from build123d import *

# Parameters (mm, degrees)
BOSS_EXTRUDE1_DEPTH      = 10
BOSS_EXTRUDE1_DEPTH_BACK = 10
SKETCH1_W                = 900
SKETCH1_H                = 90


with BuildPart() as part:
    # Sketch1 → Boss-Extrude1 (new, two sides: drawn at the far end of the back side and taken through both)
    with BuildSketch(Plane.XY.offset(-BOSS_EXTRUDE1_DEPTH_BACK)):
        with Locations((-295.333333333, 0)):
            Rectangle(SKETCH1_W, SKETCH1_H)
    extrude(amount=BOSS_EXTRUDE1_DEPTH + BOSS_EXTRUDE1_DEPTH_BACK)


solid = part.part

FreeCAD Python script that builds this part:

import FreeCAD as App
import Part
import Sketcher

V = App.Vector

doc = App.newDocument("Part")
params = doc.addObject("Spreadsheet::Sheet", "Params")
for row, (alias, value) in enumerate([
    ("sketch1_width", "900 mm"),
    ("sketch1_height", "90 mm"),
    ("pad1_length", "10 mm"),
    ("pad1_length2", "10 mm"),
], start=1):
    params.set(f"A{row}", alias)
    params.set(f"B{row}", "=" + value)
    params.setAlias(f"B{row}", alias)

body = doc.addObject("PartDesign::Body", "Body")

# Sketch on XY plane
sketch1 = body.newObject("Sketcher::SketchObject", "Sketch")
sketch1.AttachmentSupport = (doc.getObject("XY_Plane"), [""])
sketch1.MapMode = "FlatFace"
sketch1.addGeometry([
    Part.LineSegment(V(-745.333333, 45, 0), V(-745.333333, -45, 0)),
    Part.LineSegment(V(-745.333333, -45, 0), V(154.666667, -45, 0)),
    Part.LineSegment(V(154.666667, -45, 0), V(154.666667, 45, 0)),
    Part.LineSegment(V(154.666667, 45, 0), V(-745.333333, 45, 0)),
], False)
sketch1.addConstraint([
    Sketcher.Constraint("Coincident", 0, 2, 1, 1),
    Sketcher.Constraint("Coincident", 1, 2, 2, 1),
    Sketcher.Constraint("Coincident", 2, 2, 3, 1),
    Sketcher.Constraint("Coincident", 3, 2, 0, 1),
    Sketcher.Constraint("Vertical", 0),
    Sketcher.Constraint("Horizontal", 1),
    Sketcher.Constraint("Vertical", 2),
    Sketcher.Constraint("Horizontal", 3),
    Sketcher.Constraint("DistanceX", 1, 1, 1, 2, 900.0),
    Sketcher.Constraint("DistanceY", 0, 2, 0, 1, 90.0),
    Sketcher.Constraint("DistanceY", 0, 2, -1, 1, 45.0),
    Sketcher.Constraint("DistanceX", 0, 2, -1, 1, 745.333333),
])
sketch1.setExpression("Constraints[8]", "Params.sketch1_width")
sketch1.setExpression("Constraints[9]", "Params.sketch1_height")
pad1 = body.newObject("PartDesign::Pad", "Pad")
pad1.Profile = sketch1
pad1.Type = "TwoLengths"
pad1.setExpression("Length", "Params.pad1_length")
pad1.setExpression("Length2", "Params.pad1_length2")

doc.recompute()
